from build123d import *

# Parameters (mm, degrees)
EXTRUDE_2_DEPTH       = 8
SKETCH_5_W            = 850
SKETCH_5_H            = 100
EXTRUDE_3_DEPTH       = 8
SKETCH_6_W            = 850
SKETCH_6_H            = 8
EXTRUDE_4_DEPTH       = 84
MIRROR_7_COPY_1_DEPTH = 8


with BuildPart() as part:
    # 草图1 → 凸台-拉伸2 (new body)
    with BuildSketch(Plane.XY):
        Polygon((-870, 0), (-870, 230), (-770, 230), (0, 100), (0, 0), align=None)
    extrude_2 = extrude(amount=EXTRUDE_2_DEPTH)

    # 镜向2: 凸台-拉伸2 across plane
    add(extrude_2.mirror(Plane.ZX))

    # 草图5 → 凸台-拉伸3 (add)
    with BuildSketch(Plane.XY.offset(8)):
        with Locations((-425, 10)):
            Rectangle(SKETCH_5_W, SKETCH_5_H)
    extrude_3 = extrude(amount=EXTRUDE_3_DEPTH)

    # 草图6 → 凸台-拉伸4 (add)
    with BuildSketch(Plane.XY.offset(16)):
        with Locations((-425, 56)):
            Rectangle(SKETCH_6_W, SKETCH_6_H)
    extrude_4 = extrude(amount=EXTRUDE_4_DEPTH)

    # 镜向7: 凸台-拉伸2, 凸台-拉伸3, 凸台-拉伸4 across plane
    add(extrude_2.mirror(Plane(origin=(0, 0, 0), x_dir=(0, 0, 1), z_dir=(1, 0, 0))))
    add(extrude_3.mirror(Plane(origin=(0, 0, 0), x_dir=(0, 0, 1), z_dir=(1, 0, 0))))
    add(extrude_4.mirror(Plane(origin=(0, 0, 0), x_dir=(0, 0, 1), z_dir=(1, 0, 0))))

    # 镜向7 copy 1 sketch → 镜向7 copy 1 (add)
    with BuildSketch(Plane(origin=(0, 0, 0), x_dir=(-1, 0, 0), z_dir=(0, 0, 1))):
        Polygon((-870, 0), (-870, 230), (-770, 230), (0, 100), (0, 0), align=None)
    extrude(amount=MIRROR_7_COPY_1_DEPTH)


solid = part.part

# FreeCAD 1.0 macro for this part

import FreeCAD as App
import Part
import Sketcher

V = App.Vector
Q = App.Units.Quantity


def add_polygon(sketch, points):
    """Adds a closed chain of lines whose ends are joined by coincident constraints."""
    first, n = sketch.GeometryCount, len(points)
    for a, b in zip(points, points[1:] + points[:1]):
        sketch.addGeometry(Part.LineSegment(App.Vector(*a, 0), App.Vector(*b, 0)), False)
    for i in range(n):
        sketch.addConstraint(Sketcher.Constraint("Coincident", first + i, 2, first + (i + 1) % n, 1))

doc = App.newDocument("Part")
body = doc.addObject("PartDesign::Body", "Body")

# Sketch on XY plane
sketch1 = body.newObject("Sketcher::SketchObject", "Sketch")
sketch1.AttachmentSupport = (doc.getObject("XY_Plane"), [""])
sketch1.MapMode = "FlatFace"
add_polygon(sketch1, [(-870, 230), (-870, 0), (0, 0), (0, 100), (-770, 230)])  # lines 0-4
sketch1.addConstraint(Sketcher.Constraint("Vertical", 0))
sketch1.addConstraint(Sketcher.Constraint("Horizontal", 1))
sketch1.addConstraint(Sketcher.Constraint("Vertical", 2))
sketch1.addConstraint(Sketcher.Constraint("Horizontal", 4))
sketch1.addConstraint(Sketcher.Constraint("Coincident", 1, 2, -1, 1))
sketch1.addConstraint(Sketcher.Constraint("Equal", 4, 2))
sketch1.addConstraint(Sketcher.Constraint("DistanceX", 1, 1, 1, 2, Q("870 mm")))
sketch1.addConstraint(Sketcher.Constraint("DistanceX", 4, 2, 4, 1, Q("100 mm")))
sketch1.addConstraint(Sketcher.Constraint("DistanceY", 0, 2, 0, 1, Q("230 mm")))
pad1 = body.newObject("PartDesign::Pad", "Pad")
pad1.Profile = sketch1
pad1.Length = 8
doc.recompute()

mirrored = body.newObject("PartDesign::Mirrored", "Mirrored")
mirrored.Originals = [pad1]
mirrored.MirrorPlane = (doc.getObject("XZ_Plane"), [""])
body.Tip = mirrored

# Sketch on XY plane
sketch2 = body.newObject("Sketcher::SketchObject", "Sketch001")
sketch2.AttachmentSupport = (doc.getObject("XY_Plane"), [""])
sketch2.MapMode = "FlatFace"
sketch2.AttachmentOffset = App.Placement(V(0, 0, 8), App.Rotation())
add_polygon(sketch2, [(-850, 60), (-850, -40), (0, -40), (0, 60)])  # lines 0-3
sketch2.addConstraint(Sketcher.Constraint("Vertical", 0))
sketch2.addConstraint(Sketcher.Constraint("Horizontal", 1))
sketch2.addConstraint(Sketcher.Constraint("Vertical", 2))
sketch2.addConstraint(Sketcher.Constraint("Horizontal", 3))
sketch2.addConstraint(Sketcher.Constraint("PointOnObject", 1, 2, -2))
sketch2.addConstraint(Sketcher.Constraint("DistanceX", 1, 1, 1, 2, Q("850 mm")))
sketch2.addConstraint(Sketcher.Constraint("DistanceY", 0, 2, 0, 1, Q("100 mm")))
sketch2.addConstraint(Sketcher.Constraint("DistanceY", 0, 2, -1, 1, Q("40 mm")))
pad2 = body.newObject("PartDesign::Pad", "Pad001")
pad2.Profile = sketch2
pad2.Length = 8

# Sketch on XY plane
sketch3 = body.newObject("Sketcher::SketchObject", "Sketch002")
sketch3.AttachmentSupport = (doc.getObject("XY_Plane"), [""])
sketch3.MapMode = "FlatFace"
sketch3.AttachmentOffset = App.Placement(V(0, 0, 16), App.Rotation())
add_polygon(sketch3, [(-850, 60), (-850, 52), (0, 52), (0, 60)])  # lines 0-3
sketch3.addConstraint(Sketcher.Constraint("Vertical", 0))
sketch3.addConstraint(Sketcher.Constraint("Horizontal", 1))
sketch3.addConstraint(Sketcher.Constraint("Vertical", 2))
sketch3.addConstraint(Sketcher.Constraint("Horizontal", 3))
sketch3.addConstraint(Sketcher.Constraint("PointOnObject", 1, 2, -2))
sketch3.addConstraint(Sketcher.Constraint("DistanceX", 1, 1, 1, 2, Q("850 mm")))
sketch3.addConstraint(Sketcher.Constraint("DistanceY", 0, 2, 0, 1, Q("8 mm")))
sketch3.addConstraint(Sketcher.Constraint("DistanceY", -1, 1, 0, 2, Q("52 mm")))
pad3 = body.newObject("PartDesign::Pad", "Pad002")
pad3.Profile = sketch3
pad3.Length = 84
doc.recompute()

mirrored2 = body.newObject("PartDesign::Mirrored", "Mirrored001")
mirrored2.Originals = [pad1, pad2, pad3]
mirrored2.MirrorPlane = (doc.getObject("YZ_Plane"), [""])
body.Tip = mirrored2

# Sketch on XY plane
sketch4 = body.newObject("Sketcher::SketchObject", "Sketch003")
sketch4.AttachmentSupport = (doc.getObject("XY_Plane"), [""])
sketch4.MapMode = "FlatFace"
add_polygon(sketch4, [(870, -230), (870, 0), (0, 0), (0, -100), (770, -230)])  # lines 0-4
sketch4.addConstraint(Sketcher.Constraint("Vertical", 0))
sketch4.addConstraint(Sketcher.Constraint("Horizontal", 1))
sketch4.addConstraint(Sketcher.Constraint("Vertical", 2))
sketch4.addConstraint(Sketcher.Constraint("Horizontal", 4))
sketch4.addConstraint(Sketcher.Constraint("Coincident", 1, 2, -1, 1))
sketch4.addConstraint(Sketcher.Constraint("Equal", 4, 2))
sketch4.addConstraint(Sketcher.Constraint("DistanceX", 1, 2, 1, 1, Q("870 mm")))
sketch4.addConstraint(Sketcher.Constraint("DistanceX", 4, 1, 4, 2, Q("100 mm")))
sketch4.addConstraint(Sketcher.Constraint("DistanceY", 0, 1, 0, 2, Q("230 mm")))
pad4 = body.newObject("PartDesign::Pad", "Pad003")
pad4.Profile = sketch4
pad4.Length = 8

doc.recompute()
